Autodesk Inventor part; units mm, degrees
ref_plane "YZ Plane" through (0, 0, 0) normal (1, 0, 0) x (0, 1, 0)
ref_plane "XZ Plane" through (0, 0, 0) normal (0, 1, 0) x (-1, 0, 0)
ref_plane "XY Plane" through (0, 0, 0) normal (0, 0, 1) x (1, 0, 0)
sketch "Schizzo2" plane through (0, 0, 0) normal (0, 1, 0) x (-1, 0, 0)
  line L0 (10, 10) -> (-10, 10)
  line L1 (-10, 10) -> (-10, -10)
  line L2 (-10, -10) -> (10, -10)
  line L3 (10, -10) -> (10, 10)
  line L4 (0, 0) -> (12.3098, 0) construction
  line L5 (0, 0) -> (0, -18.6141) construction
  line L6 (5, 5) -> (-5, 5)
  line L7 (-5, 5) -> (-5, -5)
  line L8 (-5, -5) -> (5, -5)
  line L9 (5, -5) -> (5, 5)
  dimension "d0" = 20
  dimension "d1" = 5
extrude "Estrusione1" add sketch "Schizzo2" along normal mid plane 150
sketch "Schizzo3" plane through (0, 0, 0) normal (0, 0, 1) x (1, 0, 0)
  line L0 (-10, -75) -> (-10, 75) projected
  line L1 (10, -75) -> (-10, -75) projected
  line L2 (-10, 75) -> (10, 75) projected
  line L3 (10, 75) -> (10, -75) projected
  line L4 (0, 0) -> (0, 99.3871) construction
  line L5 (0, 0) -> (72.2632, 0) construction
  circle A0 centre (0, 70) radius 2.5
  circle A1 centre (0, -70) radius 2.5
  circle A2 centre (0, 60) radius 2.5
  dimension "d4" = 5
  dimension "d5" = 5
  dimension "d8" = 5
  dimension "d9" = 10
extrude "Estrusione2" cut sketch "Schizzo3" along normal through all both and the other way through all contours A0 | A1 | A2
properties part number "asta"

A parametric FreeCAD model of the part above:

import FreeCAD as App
import Part
import Sketcher

V = App.Vector


def add_polygon(sketch, points):
    """Adds a closed chain of lines whose ends are joined by coincident constraints."""
    first, n = sketch.GeometryCount, len(points)
    for a, b in zip(points, points[1:] + points[:1]):
        sketch.addGeometry(Part.LineSegment(App.Vector(*a, 0), App.Vector(*b, 0)), False)
    for i in range(n):
        sketch.addConstraint(Sketcher.Constraint("Coincident", first + i, 2, first + (i + 1) % n, 1))

doc = App.newDocument("Part")
body = doc.addObject("PartDesign::Body", "Body")

# Sketch on XZ plane
sketch1 = body.newObject("Sketcher::SketchObject", "Sketch")
sketch1.AttachmentSupport = (doc.getObject("XZ_Plane"), [""])
sketch1.MapMode = "FlatFace"
add_polygon(sketch1, [(-10, -10), (-10, 10), (10, 10), (10, -10)])  # lines 0-3
add_polygon(sketch1, [(5, 5), (-5, 5), (-5, -5), (5, -5)])  # lines 4-7
sketch1.addConstraint([
    Sketcher.Constraint("Vertical", 0),
    Sketcher.Constraint("Horizontal", 1),
    Sketcher.Constraint("Vertical", 2),
    Sketcher.Constraint("Horizontal", 3),
    Sketcher.Constraint("Horizontal", 4),
    Sketcher.Constraint("Vertical", 5),
    Sketcher.Constraint("Horizontal", 6),
    Sketcher.Constraint("Vertical", 7),
    Sketcher.Constraint("Symmetric", 0, 2, 2, 2, -1, 1),
    Sketcher.Constraint("Symmetric", 4, 2, 6, 2, -1, 1),
    Sketcher.Constraint("Equal", 3, 0),
    Sketcher.Constraint("Equal", 6, 5),
    Sketcher.Constraint("DistanceX", 1, 1, 1, 2, 20.0),
    Sketcher.Constraint("DistanceX", 4, 2, -1, 1, 5.0),
])
pad1 = body.newObject("PartDesign::Pad", "Pad")
pad1.Profile = sketch1
pad1.Length = 150
pad1.Midplane = True

# Sketch on XY plane
sketch2 = body.newObject("Sketcher::SketchObject", "Sketch001")
sketch2.AttachmentSupport = (doc.getObject("XY_Plane"), [""])
sketch2.MapMode = "FlatFace"
sketch2.addGeometry([
    Part.Circle(V(0, 70, 0), V(0, 0, 1), 2.5),
    Part.Circle(V(0, -70, 0), V(0, 0, 1), 2.5),
    Part.Circle(V(0, 60, 0), V(0, 0, 1), 2.5),
], False)
sketch2.addConstraint([
    Sketcher.Constraint("Equal", 0, 1),
    Sketcher.Constraint("Equal", 1, 2),
    Sketcher.Constraint("Symmetric", 0, 3, 1, 3, -1, 1),
    Sketcher.Constraint("PointOnObject", 0, 3, -2),
    Sketcher.Constraint("PointOnObject", 2, 3, -2),
    Sketcher.Constraint("Diameter", 0, 5.0),
    Sketcher.Constraint("DistanceY", 2, 3, 0, 3, 10.0),
    Sketcher.Constraint("DistanceY", -1, 1, 0, 3, 70.0),
])
pocket1 = body.newObject("PartDesign::Pocket", "Pocket")
pocket1.Profile = sketch2
pocket1.Type = "ThroughAll"
pocket1.Midplane = True

doc.recompute()
